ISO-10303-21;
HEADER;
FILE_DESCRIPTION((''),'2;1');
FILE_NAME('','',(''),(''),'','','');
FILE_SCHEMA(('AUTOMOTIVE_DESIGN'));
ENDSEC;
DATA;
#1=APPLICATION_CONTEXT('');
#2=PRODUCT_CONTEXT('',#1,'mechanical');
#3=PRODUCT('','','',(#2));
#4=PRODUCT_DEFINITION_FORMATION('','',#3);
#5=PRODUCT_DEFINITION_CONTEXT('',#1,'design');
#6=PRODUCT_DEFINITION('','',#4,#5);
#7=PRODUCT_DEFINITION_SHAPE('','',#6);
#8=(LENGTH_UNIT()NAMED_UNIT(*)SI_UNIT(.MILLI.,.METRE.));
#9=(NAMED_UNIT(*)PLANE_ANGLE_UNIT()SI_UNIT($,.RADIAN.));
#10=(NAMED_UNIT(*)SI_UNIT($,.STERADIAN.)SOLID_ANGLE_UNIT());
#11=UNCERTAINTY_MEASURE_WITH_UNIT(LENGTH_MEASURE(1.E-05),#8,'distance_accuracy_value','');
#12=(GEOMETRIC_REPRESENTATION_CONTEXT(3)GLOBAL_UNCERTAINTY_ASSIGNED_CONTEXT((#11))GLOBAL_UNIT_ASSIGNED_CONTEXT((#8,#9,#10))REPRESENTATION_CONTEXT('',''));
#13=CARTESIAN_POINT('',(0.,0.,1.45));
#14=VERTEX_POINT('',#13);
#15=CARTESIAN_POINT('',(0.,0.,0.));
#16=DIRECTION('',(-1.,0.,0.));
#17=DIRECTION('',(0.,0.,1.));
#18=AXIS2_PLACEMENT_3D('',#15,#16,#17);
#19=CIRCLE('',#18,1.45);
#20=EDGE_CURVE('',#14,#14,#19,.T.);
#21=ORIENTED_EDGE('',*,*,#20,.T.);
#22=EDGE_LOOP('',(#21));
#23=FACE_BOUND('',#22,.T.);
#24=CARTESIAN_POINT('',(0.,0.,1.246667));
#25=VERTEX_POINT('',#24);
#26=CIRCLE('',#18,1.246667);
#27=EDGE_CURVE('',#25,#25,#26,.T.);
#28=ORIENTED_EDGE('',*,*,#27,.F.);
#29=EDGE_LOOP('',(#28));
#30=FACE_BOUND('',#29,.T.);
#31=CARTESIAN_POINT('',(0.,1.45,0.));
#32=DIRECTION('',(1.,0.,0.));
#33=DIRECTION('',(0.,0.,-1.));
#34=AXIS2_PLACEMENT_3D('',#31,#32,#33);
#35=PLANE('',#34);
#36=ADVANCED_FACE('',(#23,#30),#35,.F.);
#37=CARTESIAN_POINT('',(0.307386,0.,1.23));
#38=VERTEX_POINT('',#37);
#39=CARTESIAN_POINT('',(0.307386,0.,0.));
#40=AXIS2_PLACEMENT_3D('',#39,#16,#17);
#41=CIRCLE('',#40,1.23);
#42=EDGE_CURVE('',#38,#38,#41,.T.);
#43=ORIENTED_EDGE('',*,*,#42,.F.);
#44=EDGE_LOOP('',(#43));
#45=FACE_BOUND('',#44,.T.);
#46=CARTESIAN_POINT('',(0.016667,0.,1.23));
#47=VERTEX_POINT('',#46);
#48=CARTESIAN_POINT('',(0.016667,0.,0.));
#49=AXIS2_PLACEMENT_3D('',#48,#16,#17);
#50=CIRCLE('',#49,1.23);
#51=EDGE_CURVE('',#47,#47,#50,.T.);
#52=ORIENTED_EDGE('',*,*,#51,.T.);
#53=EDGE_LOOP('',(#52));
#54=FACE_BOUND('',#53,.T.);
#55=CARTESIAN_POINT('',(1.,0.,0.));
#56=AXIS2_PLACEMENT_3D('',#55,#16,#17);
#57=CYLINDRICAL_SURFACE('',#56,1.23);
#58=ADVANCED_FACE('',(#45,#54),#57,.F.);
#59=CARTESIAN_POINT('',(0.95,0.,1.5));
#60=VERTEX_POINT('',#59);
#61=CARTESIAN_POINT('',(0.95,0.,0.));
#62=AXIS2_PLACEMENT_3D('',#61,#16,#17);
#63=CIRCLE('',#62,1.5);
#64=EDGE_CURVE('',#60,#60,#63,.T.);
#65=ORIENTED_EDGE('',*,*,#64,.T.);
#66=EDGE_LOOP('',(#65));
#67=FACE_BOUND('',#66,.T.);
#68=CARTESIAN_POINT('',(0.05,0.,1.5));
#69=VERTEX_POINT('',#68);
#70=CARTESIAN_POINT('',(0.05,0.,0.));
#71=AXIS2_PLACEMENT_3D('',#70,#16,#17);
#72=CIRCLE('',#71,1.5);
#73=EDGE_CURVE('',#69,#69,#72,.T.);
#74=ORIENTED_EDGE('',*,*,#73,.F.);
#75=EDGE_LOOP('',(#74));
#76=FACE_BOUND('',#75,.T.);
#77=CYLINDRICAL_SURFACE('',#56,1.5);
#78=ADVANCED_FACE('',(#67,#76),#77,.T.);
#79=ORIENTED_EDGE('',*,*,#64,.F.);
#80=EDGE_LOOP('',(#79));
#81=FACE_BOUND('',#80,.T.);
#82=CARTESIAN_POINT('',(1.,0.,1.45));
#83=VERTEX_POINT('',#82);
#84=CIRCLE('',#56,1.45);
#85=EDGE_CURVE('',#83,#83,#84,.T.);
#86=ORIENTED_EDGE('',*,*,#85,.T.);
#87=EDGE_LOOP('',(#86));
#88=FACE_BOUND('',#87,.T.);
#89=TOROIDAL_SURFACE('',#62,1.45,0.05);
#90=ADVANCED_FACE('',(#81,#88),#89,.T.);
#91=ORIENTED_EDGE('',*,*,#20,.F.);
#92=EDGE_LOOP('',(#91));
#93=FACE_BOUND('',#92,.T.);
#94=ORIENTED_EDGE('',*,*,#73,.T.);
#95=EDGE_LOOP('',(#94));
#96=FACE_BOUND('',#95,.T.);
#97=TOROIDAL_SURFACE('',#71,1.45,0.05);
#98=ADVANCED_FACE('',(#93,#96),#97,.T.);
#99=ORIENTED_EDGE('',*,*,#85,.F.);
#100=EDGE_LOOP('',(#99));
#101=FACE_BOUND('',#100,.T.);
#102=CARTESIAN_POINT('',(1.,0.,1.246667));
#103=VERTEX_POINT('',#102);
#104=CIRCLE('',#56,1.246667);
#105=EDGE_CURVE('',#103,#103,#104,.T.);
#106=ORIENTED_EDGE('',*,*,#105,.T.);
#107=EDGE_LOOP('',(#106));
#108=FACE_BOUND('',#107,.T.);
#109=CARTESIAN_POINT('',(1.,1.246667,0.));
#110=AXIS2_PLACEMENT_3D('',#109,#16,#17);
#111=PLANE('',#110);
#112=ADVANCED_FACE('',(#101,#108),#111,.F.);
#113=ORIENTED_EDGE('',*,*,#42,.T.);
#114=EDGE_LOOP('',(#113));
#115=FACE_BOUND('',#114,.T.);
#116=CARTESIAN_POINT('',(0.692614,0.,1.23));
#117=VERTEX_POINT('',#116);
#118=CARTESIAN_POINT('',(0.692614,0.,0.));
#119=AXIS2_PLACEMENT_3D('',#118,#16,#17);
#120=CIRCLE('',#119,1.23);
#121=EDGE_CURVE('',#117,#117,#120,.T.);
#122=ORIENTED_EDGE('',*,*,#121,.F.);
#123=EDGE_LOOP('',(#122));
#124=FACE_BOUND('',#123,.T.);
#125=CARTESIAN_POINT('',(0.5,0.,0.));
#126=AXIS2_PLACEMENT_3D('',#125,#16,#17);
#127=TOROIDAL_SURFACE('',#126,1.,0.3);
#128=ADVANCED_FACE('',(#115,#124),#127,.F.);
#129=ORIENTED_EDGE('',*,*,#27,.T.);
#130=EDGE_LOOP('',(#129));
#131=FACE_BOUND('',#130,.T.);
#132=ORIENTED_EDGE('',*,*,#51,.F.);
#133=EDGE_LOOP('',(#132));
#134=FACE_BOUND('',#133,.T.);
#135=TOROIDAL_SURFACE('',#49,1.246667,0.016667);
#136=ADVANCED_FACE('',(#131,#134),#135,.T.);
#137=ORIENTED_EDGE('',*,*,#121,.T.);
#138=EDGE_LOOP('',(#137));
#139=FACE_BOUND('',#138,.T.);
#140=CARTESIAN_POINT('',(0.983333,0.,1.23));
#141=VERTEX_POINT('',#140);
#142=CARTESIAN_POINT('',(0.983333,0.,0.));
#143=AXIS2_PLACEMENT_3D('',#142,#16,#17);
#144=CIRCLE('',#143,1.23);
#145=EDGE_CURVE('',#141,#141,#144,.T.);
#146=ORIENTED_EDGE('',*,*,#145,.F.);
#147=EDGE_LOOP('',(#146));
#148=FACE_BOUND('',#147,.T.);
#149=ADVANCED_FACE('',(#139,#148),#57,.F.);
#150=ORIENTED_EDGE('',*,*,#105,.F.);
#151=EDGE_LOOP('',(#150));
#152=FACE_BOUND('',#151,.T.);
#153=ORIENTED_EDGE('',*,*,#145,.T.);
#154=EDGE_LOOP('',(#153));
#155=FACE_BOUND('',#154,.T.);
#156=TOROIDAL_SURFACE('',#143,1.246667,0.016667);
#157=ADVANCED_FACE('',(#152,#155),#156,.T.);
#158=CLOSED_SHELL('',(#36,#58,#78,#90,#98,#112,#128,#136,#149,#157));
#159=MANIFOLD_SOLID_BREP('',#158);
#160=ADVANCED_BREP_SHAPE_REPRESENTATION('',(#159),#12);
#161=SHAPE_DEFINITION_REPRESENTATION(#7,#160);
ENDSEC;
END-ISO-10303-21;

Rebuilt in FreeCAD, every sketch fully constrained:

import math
import FreeCAD as App
import Part
import Sketcher

V = App.Vector

doc = App.newDocument("Part")
body = doc.addObject("PartDesign::Body", "Body")

# Sketch on XY plane
sketch1 = body.newObject("Sketcher::SketchObject", "Sketch")
sketch1.AttachmentSupport = (doc.getObject("XY_Plane"), [""])
sketch1.MapMode = "FlatFace"
sketch1.addGeometry(Part.LineSegment(V(0.017, 1.23, 0), V(0.307, 1.23, 0)), False)
sketch1.addGeometry(Part.ArcOfCircle(Part.Circle(V(0.5, 1, 0), V(0, 0, 1), 0.3), math.radians(50), math.radians(130)), False)
sketch1.addGeometry(Part.LineSegment(V(0.693, 1.23, 0), V(0.983, 1.23, 0)), False)
sketch1.addGeometry(Part.ArcOfCircle(Part.Circle(V(0.983, 1.247, 0), V(0, 0, 1), 0.017), math.radians(-90), math.radians(0)), False)
sketch1.addGeometry(Part.LineSegment(V(1, 1.247, 0), V(1, 1.45, 0)), False)
sketch1.addGeometry(Part.ArcOfCircle(Part.Circle(V(0.95, 1.45, 0), V(0, 0, 1), 0.05), math.radians(0), math.radians(90)), False)
sketch1.addGeometry(Part.LineSegment(V(0.95, 1.5, 0), V(0.05, 1.5, 0)), False)
sketch1.addGeometry(Part.ArcOfCircle(Part.Circle(V(0.05, 1.45, 0), V(0, 0, 1), 0.05), math.radians(90), math.radians(180)), False)
sketch1.addGeometry(Part.LineSegment(V(0, 1.45, 0), V(0, 1.247, 0)), False)
sketch1.addGeometry(Part.ArcOfCircle(Part.Circle(V(0.017, 1.247, 0), V(0, 0, 1), 0.017), math.radians(-180), math.radians(-90)), False)
sketch1.addConstraint(Sketcher.Constraint("Coincident", 0, 2, 1, 2))
sketch1.addConstraint(Sketcher.Constraint("Coincident", 1, 1, 2, 1))
sketch1.addConstraint(Sketcher.Constraint("Tangent", 2, 2, 3, 1))
sketch1.addConstraint(Sketcher.Constraint("Tangent", 3, 2, 4, 1))
sketch1.addConstraint(Sketcher.Constraint("Tangent", 4, 2, 5, 1))
sketch1.addConstraint(Sketcher.Constraint("Tangent", 5, 2, 6, 1))
sketch1.addConstraint(Sketcher.Constraint("Tangent", 6, 2, 7, 1))
sketch1.addConstraint(Sketcher.Constraint("Tangent", 7, 2, 8, 1))
sketch1.addConstraint(Sketcher.Constraint("Tangent", 8, 2, 9, 1))
sketch1.addConstraint(Sketcher.Constraint("Tangent", 9, 2, 0, 1))
sketch1.addConstraint(Sketcher.Constraint("Horizontal", 0))
sketch1.addConstraint(Sketcher.Constraint("Horizontal", 2))
sketch1.addConstraint(Sketcher.Constraint("Vertical", 4))
sketch1.addConstraint(Sketcher.Constraint("Horizontal", 6))
sketch1.addConstraint(Sketcher.Constraint("Vertical", 8))
sketch1.addConstraint(Sketcher.Constraint("Equal", 5, 7))
sketch1.addConstraint(Sketcher.Constraint("Equal", 3, 9))
sketch1.addConstraint(Sketcher.Constraint("PointOnObject", 7, 2, -2))
sketch1.addConstraint(Sketcher.Constraint("Horizontal", 3, 3, 9, 3))
sketch1.addConstraint(Sketcher.Constraint("Equal", 0, 2))
sketch1.addConstraint(Sketcher.Constraint("Radius", 1, 0.3))
sketch1.addConstraint(Sketcher.Constraint("Radius", 5, 0.05))
sketch1.addConstraint(Sketcher.Constraint("DistanceX", 6, 2, 6, 1, 0.9))
sketch1.addConstraint(Sketcher.Constraint("DistanceY", -1, 1, 1, 3, 1.0))
sketch1.addConstraint(Sketcher.Constraint("DistanceY", -1, 1, 5, 2, 1.5))
sketch1.addConstraint(Sketcher.Constraint("DistanceY", -1, 1, 0, 2, 1.23))
sketch1.addConstraint(Sketcher.Constraint("Radius", 3, 0.016667))
revolution = body.newObject("PartDesign::Revolution", "Revolution")
revolution.Profile = sketch1
revolution.ReferenceAxis = (sketch1, ["H_Axis"])
revolution.Angle = 360

doc.recompute()
